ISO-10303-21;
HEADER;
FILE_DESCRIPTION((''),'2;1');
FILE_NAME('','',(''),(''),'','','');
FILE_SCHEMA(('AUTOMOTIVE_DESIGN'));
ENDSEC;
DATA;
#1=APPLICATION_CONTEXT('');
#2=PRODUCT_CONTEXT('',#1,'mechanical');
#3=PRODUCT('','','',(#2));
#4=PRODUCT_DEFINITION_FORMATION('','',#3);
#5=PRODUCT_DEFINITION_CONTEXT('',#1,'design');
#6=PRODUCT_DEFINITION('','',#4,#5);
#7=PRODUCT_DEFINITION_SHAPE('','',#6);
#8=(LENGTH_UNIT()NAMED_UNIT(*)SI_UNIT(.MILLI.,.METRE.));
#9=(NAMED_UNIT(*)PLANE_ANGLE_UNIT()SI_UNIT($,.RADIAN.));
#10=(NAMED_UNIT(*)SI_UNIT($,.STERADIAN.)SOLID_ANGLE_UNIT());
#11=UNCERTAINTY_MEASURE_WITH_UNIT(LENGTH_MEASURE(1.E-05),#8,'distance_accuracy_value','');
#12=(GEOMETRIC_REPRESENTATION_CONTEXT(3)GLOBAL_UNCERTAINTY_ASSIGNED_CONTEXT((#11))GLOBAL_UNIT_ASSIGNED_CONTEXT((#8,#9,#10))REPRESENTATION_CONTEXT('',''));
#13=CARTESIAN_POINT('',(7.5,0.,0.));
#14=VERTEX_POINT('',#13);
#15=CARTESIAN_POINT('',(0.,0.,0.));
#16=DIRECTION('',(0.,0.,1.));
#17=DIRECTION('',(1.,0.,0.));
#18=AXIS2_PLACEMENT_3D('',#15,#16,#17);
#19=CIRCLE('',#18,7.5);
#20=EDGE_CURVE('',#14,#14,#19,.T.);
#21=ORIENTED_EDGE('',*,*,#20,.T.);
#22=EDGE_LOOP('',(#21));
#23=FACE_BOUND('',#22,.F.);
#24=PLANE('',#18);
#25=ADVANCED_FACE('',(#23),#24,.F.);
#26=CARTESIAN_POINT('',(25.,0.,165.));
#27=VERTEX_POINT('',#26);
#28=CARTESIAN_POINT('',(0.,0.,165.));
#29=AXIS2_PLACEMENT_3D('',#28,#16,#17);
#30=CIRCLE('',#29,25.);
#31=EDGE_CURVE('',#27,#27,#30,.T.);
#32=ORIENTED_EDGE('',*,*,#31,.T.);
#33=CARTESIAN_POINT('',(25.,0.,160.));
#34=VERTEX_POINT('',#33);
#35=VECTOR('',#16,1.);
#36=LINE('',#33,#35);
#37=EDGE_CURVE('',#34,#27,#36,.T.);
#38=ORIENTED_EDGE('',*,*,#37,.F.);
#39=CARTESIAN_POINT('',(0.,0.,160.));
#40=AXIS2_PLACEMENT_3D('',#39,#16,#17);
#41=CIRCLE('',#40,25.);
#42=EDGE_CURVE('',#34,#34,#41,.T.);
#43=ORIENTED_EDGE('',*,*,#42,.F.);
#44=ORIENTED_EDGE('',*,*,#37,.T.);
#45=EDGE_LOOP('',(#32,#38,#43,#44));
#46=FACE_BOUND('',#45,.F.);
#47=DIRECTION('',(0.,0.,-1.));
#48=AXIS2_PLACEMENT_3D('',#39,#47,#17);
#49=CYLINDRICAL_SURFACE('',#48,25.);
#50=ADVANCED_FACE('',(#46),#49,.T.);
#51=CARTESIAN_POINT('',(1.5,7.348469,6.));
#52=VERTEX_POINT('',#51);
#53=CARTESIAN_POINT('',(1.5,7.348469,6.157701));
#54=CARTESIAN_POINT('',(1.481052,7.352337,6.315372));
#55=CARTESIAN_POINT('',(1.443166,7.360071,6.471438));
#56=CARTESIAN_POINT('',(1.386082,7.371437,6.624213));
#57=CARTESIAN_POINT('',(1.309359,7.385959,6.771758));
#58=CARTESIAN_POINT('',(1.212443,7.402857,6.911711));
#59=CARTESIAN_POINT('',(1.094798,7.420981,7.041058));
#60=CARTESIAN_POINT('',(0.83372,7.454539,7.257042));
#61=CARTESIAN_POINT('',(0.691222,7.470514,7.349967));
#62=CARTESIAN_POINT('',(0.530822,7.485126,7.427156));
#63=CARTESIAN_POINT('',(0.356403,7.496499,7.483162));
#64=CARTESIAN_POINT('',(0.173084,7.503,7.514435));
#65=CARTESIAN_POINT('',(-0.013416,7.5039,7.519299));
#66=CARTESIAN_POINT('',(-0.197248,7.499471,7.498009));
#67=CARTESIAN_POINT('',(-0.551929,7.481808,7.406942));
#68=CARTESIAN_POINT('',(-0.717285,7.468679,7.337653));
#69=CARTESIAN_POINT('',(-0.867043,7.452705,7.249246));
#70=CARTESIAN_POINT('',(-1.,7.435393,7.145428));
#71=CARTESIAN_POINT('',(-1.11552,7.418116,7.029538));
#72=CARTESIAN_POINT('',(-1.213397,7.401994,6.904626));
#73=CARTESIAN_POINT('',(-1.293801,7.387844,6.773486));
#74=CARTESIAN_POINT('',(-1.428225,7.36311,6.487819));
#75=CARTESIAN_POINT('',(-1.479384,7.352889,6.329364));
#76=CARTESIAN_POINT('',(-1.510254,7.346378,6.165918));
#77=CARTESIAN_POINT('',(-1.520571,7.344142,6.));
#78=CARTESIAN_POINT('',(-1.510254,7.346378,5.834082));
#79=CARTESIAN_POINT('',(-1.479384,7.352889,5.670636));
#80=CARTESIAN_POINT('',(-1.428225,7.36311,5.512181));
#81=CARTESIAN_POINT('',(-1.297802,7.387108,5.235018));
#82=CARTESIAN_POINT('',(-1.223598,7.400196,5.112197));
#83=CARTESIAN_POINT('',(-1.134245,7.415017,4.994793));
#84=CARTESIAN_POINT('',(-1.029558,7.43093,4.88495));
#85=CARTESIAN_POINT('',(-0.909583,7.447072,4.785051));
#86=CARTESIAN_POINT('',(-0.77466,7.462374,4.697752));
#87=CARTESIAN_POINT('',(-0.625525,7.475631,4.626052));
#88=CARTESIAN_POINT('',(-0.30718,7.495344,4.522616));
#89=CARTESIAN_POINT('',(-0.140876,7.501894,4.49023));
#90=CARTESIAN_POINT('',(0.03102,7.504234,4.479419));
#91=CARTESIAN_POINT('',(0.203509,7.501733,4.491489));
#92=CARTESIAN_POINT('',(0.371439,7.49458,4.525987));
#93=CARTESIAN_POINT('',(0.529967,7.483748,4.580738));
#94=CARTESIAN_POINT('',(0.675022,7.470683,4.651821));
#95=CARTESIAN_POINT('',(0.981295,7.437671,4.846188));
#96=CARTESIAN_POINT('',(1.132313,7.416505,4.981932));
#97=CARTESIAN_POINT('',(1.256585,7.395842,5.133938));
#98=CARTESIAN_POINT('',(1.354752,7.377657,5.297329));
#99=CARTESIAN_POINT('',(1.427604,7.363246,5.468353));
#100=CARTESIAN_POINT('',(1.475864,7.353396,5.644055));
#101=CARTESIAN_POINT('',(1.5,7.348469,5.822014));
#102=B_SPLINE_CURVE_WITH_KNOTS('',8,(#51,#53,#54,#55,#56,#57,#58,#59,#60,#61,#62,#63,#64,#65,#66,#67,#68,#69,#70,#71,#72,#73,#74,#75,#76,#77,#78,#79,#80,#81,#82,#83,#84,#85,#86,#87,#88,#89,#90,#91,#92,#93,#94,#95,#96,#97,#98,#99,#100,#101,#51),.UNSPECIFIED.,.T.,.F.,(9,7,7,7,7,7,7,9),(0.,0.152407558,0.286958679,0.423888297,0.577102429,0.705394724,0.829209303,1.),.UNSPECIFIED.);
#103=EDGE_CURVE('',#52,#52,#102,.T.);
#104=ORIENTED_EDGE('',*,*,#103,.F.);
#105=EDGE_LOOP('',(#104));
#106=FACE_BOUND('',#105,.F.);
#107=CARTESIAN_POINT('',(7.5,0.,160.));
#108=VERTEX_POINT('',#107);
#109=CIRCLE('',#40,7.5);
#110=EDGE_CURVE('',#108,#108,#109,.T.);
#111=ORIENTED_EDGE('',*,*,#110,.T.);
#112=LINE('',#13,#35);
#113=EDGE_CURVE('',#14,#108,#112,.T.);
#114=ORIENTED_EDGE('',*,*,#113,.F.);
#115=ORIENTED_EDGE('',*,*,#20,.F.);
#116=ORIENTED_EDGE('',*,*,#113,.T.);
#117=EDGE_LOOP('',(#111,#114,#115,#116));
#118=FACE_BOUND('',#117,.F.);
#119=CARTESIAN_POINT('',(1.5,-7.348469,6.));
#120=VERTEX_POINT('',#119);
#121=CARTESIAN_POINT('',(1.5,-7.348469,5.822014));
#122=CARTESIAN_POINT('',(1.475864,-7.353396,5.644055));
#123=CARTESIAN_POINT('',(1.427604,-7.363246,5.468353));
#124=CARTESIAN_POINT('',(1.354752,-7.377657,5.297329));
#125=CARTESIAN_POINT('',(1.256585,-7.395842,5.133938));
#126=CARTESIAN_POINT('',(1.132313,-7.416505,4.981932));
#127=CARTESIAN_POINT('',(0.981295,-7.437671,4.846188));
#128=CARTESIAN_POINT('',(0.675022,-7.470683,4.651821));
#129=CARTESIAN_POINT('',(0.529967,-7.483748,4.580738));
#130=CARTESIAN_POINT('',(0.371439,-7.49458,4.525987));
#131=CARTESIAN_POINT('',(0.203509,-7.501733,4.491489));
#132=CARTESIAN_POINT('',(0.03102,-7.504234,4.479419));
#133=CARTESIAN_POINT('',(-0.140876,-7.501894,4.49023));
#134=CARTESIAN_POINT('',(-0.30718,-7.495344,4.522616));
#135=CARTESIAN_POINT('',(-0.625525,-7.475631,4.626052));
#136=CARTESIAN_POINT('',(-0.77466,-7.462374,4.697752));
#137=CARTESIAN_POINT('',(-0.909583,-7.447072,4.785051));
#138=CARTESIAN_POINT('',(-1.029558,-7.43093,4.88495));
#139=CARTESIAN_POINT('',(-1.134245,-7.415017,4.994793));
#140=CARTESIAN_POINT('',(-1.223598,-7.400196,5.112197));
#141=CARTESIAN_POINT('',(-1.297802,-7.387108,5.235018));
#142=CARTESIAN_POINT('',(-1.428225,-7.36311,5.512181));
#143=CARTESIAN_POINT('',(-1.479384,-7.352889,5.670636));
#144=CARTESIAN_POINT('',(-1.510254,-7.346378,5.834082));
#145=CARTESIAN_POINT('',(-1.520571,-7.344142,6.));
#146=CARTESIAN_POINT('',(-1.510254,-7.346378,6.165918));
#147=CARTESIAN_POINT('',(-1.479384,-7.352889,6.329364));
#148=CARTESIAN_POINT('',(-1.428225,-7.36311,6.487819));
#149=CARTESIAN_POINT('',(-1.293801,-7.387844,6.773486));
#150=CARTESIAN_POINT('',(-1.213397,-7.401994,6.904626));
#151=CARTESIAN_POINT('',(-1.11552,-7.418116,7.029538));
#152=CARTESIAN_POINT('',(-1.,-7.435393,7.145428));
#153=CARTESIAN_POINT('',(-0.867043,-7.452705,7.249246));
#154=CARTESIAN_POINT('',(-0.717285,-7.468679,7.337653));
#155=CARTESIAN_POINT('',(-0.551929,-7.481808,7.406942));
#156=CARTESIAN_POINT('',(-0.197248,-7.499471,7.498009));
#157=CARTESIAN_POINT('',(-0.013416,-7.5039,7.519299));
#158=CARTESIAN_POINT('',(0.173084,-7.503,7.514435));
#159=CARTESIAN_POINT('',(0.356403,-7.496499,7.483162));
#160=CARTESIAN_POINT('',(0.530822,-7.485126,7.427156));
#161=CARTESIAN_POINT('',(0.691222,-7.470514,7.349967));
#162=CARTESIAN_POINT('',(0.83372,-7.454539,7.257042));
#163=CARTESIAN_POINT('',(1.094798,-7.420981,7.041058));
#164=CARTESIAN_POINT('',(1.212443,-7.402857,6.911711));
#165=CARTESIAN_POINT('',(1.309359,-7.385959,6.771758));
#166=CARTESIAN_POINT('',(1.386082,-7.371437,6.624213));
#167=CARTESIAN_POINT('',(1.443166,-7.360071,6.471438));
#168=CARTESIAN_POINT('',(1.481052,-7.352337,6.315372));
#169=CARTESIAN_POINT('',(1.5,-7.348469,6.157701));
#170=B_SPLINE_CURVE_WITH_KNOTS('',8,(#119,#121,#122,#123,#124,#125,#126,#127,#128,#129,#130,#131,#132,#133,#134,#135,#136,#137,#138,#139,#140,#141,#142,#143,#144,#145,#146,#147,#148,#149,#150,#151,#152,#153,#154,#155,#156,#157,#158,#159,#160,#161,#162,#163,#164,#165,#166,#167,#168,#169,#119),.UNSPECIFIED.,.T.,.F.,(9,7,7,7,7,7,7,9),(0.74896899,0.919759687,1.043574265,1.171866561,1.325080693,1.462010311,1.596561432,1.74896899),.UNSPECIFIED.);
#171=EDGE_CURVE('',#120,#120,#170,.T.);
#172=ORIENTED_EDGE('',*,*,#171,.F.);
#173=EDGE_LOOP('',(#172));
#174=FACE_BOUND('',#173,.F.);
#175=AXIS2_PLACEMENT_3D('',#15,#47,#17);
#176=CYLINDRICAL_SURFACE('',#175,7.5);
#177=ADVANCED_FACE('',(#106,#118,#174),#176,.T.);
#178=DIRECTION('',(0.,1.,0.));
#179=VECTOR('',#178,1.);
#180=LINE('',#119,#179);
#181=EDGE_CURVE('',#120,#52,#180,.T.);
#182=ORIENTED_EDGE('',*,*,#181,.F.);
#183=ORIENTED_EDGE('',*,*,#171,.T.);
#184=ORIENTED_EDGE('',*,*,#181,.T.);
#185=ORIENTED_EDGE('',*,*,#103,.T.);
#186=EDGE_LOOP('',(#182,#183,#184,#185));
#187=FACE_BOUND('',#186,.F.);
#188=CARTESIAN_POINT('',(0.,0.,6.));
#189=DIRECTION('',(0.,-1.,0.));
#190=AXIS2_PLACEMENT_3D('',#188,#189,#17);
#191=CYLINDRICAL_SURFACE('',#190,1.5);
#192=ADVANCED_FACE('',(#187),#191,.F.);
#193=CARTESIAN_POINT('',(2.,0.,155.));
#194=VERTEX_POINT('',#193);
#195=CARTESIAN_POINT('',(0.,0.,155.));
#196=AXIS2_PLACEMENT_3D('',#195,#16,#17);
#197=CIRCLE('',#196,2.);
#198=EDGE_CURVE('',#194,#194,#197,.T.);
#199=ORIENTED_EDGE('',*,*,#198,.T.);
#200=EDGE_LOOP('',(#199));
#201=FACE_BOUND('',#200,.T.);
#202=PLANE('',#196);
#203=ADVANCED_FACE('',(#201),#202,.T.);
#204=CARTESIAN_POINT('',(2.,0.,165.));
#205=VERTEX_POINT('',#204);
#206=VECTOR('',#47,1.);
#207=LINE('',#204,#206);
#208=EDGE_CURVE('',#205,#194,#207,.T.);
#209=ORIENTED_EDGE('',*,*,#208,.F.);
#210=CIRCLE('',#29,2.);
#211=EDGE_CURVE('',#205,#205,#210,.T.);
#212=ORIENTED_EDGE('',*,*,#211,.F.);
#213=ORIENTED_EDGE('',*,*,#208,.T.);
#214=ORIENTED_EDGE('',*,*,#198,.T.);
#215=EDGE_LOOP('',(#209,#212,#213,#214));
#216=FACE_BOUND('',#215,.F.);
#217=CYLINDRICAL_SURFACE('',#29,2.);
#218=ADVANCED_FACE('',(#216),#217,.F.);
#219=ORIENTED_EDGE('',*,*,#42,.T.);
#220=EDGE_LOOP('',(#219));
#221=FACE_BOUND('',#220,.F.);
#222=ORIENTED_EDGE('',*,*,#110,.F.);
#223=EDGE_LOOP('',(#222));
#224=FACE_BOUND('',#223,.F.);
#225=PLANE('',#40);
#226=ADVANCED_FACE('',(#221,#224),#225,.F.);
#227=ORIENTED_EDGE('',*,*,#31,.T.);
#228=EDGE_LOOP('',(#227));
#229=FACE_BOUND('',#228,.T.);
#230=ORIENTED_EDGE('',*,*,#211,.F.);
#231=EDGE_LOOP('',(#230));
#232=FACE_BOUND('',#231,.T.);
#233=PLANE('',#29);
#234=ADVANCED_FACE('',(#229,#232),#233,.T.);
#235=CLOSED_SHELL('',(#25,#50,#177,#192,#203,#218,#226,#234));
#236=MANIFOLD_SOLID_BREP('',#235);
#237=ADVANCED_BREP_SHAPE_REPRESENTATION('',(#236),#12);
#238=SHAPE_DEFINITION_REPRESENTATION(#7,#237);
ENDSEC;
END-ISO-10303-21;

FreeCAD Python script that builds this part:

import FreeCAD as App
import Part
import Sketcher

V = App.Vector

doc = App.newDocument("Part")
body = doc.addObject("PartDesign::Body", "Body")

sketch1 = body.newObject("Sketcher::SketchObject", "Sketch")
sketch1.AttachmentSupport = (doc.getObject("XY_Plane"), [""])
sketch1.MapMode = "FlatFace"
sketch1.addGeometry(Part.Circle(V(0, 0, 0), V(0, 0, 1), 8), False)
sketch1.addConstraint([
    Sketcher.Constraint("Coincident", 0, 3, -1, 1),
    Sketcher.Constraint("Diameter", 0, 15.0),
])
pad1 = body.newObject("PartDesign::Pad", "Pad")
pad1.Profile = sketch1
pad1.Length = 160

sketch2 = body.newObject("Sketcher::SketchObject", "Sketch001")
sketch2.AttachmentSupport = (doc.getObject("XY_Plane"), [""])
sketch2.MapMode = "FlatFace"
sketch2.AttachmentOffset = App.Placement(V(0, 0, 160), App.Rotation())
sketch2.addGeometry(Part.Circle(V(0, 0, 0), V(0, 0, 1), 25), False)
sketch2.addConstraint([
    Sketcher.Constraint("Coincident", 0, 3, -1, 1),
    Sketcher.Constraint("Diameter", 0, 50.0),
])
pad2 = body.newObject("PartDesign::Pad", "Pad001")
pad2.Profile = sketch2
pad2.Length = 5

sketch3 = body.newObject("Sketcher::SketchObject", "Sketch002")
sketch3.AttachmentSupport = (doc.getObject("XZ_Plane"), [""])
sketch3.MapMode = "FlatFace"
sketch3.addGeometry(Part.Circle(V(0, 6, 0), V(0, 0, 1), 1.5), False)
sketch3.addConstraint([
    Sketcher.Constraint("PointOnObject", 0, 3, -2),
    Sketcher.Constraint("Diameter", 0, 3.0),
    Sketcher.Constraint("DistanceY", -1, 1, 0, 3, 6.0),
])
pocket1 = body.newObject("PartDesign::Pocket", "Pocket")
pocket1.Profile = sketch3
pocket1.Type = "ThroughAll"
pocket1.Midplane = True

sketch4 = body.newObject("Sketcher::SketchObject", "Sketch003")
sketch4.AttachmentSupport = (doc.getObject("XY_Plane"), [""])
sketch4.MapMode = "FlatFace"
sketch4.AttachmentOffset = App.Placement(V(0, 0, 165), App.Rotation())
sketch4.addGeometry(Part.Circle(V(0, 0, 0), V(0, 0, 1), 2), False)
sketch4.addConstraint([
    Sketcher.Constraint("Coincident", 0, 3, -1, 1),
    Sketcher.Constraint("Diameter", 0, 4.0),
])
pocket2 = body.newObject("PartDesign::Pocket", "Pocket001")
pocket2.Profile = sketch4
pocket2.Length = 10

doc.recompute()
